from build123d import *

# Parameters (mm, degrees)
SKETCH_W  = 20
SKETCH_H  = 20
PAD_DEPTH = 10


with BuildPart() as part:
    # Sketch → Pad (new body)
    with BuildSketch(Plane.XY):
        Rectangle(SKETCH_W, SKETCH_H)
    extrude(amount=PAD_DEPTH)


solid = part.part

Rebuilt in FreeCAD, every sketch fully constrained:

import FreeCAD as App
import Part
import Sketcher

V = App.Vector


def add_polygon(sketch, points):
    """Adds a closed chain of lines whose ends are joined by coincident constraints."""
    first, n = sketch.GeometryCount, len(points)
    for a, b in zip(points, points[1:] + points[:1]):
        sketch.addGeometry(Part.LineSegment(App.Vector(*a, 0), App.Vector(*b, 0)), False)
    for i in range(n):
        sketch.addConstraint(Sketcher.Constraint("Coincident", first + i, 2, first + (i + 1) % n, 1))

doc = App.newDocument("Part")
body = doc.addObject("PartDesign::Body", "Body")

sketch1 = body.newObject("Sketcher::SketchObject", "Sketch")
sketch1.AttachmentSupport = (doc.getObject("XY_Plane"), [""])
sketch1.MapMode = "FlatFace"
add_polygon(sketch1, [(-10, 10), (-10, -10), (10, -10), (10, 10)])
sketch1.addConstraint([
    Sketcher.Constraint("Vertical", 0),
    Sketcher.Constraint("Horizontal", 1),
    Sketcher.Constraint("Vertical", 2),
    Sketcher.Constraint("Horizontal", 3),
    Sketcher.Constraint("Symmetric", 0, 2, 2, 2, -1, 1),
    Sketcher.Constraint("Equal", 3, 0),
    Sketcher.Constraint("DistanceX", 1, 1, 1, 2, 20.0),
])
pad1 = body.newObject("PartDesign::Pad", "Pad")
pad1.Profile = sketch1
pad1.Length = 10

doc.recompute()
